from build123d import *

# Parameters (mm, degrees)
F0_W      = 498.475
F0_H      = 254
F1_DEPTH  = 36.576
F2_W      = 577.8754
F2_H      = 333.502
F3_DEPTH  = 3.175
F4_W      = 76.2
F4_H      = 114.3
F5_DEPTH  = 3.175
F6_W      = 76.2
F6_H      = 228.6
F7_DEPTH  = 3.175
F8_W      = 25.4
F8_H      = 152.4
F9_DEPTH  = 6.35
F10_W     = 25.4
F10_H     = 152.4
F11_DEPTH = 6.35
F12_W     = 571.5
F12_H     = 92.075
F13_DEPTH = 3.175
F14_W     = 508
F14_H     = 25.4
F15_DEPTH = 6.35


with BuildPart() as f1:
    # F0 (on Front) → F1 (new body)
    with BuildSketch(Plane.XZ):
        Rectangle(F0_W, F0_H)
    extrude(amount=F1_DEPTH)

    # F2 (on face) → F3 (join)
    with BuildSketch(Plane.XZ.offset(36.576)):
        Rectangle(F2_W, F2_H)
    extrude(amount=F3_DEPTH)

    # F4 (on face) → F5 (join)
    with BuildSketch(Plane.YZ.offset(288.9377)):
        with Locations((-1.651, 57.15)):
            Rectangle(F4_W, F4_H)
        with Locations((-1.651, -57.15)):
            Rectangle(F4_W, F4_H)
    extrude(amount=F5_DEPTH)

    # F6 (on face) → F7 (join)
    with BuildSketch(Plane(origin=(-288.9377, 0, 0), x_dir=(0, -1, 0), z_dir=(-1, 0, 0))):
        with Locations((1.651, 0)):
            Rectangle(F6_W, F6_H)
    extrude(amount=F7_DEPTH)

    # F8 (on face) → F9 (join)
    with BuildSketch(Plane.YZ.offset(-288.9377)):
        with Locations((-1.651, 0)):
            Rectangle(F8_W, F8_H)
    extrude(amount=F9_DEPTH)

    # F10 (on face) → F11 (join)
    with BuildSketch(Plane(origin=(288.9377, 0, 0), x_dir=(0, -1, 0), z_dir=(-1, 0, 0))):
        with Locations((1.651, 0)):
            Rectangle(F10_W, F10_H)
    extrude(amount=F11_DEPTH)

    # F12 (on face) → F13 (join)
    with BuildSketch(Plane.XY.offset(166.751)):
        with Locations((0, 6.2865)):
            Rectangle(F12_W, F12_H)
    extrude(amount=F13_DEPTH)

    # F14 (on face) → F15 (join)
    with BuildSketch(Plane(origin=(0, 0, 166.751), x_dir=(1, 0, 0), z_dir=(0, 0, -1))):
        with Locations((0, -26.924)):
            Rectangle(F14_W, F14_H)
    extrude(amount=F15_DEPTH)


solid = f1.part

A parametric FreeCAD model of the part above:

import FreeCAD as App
import Part
import Sketcher
from FreeCAD import Vector
Q = App.Units.Quantity


def add_polygon(sketch, points):
    """Adds a closed chain of lines whose ends are joined by coincident constraints."""
    first, n = sketch.GeometryCount, len(points)
    for a, b in zip(points, points[1:] + points[:1]):
        sketch.addGeometry(Part.LineSegment(App.Vector(*a, 0), App.Vector(*b, 0)), False)
    for i in range(n):
        sketch.addConstraint(Sketcher.Constraint("Coincident", first + i, 2, first + (i + 1) % n, 1))

doc = App.newDocument("Part")
body = doc.addObject("PartDesign::Body", "Body")

# Sketch on XZ plane
sketch1 = doc.addObject("Sketcher::SketchObject", "Sketch")
body.addObject(sketch1)
sketch1.AttachmentSupport = (doc.XZ_Plane, [""])
sketch1.MapMode = "FlatFace"
add_polygon(sketch1, [(-249.2375, 127), (-249.2375, -127), (249.2375, -127), (249.2375, 127)])  # lines 0-3
sketch1.addConstraint([
    Sketcher.Constraint("Vertical", 0),
    Sketcher.Constraint("Horizontal", 1),
    Sketcher.Constraint("Vertical", 2),
    Sketcher.Constraint("Horizontal", 3),
    Sketcher.Constraint("Symmetric", 0, 2, 2, 2, -1, 1),
    Sketcher.Constraint("DistanceY", 0, 2, 0, 1, Q("10 in")),
    Sketcher.Constraint("DistanceX", 1, 1, 1, 2, Q("19.625 in")),
])
pad1 = doc.addObject("PartDesign::Pad", "Pad")
body.addObject(pad1)
pad1.Profile = sketch1
pad1.Length = Q("1.44 in")

# Sketch on XZ plane
sketch2 = doc.addObject("Sketcher::SketchObject", "Sketch001")
body.addObject(sketch2)
sketch2.AttachmentSupport = (doc.XZ_Plane, [""])
sketch2.MapMode = "FlatFace"
sketch2.AttachmentOffset = App.Placement(Vector(0, 0, 1.44 * 25.4), App.Rotation())
add_polygon(sketch2, [(-288.9377, 166.751), (-288.9377, -166.751), (288.9377, -166.751), (288.9377, 166.751)])  # lines 0-3
sketch2.addConstraint([
    Sketcher.Constraint("Vertical", 0),
    Sketcher.Constraint("Horizontal", 1),
    Sketcher.Constraint("Vertical", 2),
    Sketcher.Constraint("Horizontal", 3),
    Sketcher.Constraint("Symmetric", 0, 2, 2, 2, -1, 1),
    Sketcher.Constraint("DistanceY", 0, 2, 0, 1, Q("13.13 in")),
    Sketcher.Constraint("DistanceX", 1, 1, 1, 2, Q("22.751 in")),
])
pad2 = doc.addObject("PartDesign::Pad", "Pad001")
body.addObject(pad2)
pad2.Profile = sketch2
pad2.Length = Q("0.125 in")

# Sketch on YZ plane
sketch3 = doc.addObject("Sketcher::SketchObject", "Sketch002")
body.addObject(sketch3)
sketch3.AttachmentSupport = (doc.YZ_Plane, [""])
sketch3.MapMode = "FlatFace"
sketch3.AttachmentOffset = App.Placement(Vector(0, 0, 11.3755 * 25.4), App.Rotation())
add_polygon(sketch3, [(-39.751, 114.3), (-39.751, -114.3), (36.449, -114.3), (36.449, 114.3)])  # lines 0-3
sketch3.addConstraint([
    Sketcher.Constraint("Vertical", 0),
    Sketcher.Constraint("Horizontal", 1),
    Sketcher.Constraint("Vertical", 2),
    Sketcher.Constraint("Horizontal", 3),
    Sketcher.Constraint("DistanceX", 1, 1, 1, 2, Q("3 in")),
    Sketcher.Constraint("DistanceY", 0, 2, 0, 1, Q("9 in")),
    Sketcher.Constraint("DistanceY", 0, 2, -1, 1, Q("4.5 in")),
    Sketcher.Constraint("DistanceX", 0, 2, -1, 1, Q("1.565 in")),
])
pad3 = doc.addObject("PartDesign::Pad", "Pad002")
body.addObject(pad3)
pad3.Profile = sketch3
pad3.Length = Q("0.125 in")

# Sketch on YZ plane
sketch4 = doc.addObject("Sketcher::SketchObject", "Sketch003")
body.addObject(sketch4)
sketch4.AttachmentSupport = (doc.YZ_Plane, [""])
sketch4.MapMode = "FlatFace"
sketch4.AttachmentOffset = App.Placement(Vector(0, 0, -11.3755 * 25.4), App.Rotation())
add_polygon(sketch4, [(36.449, 114.3), (36.449, -114.3), (-39.751, -114.3), (-39.751, 114.3)])  # lines 0-3
sketch4.addConstraint([
    Sketcher.Constraint("Vertical", 0),
    Sketcher.Constraint("Horizontal", 1),
    Sketcher.Constraint("Vertical", 2),
    Sketcher.Constraint("Horizontal", 3),
    Sketcher.Constraint("DistanceX", 1, 2, 1, 1, Q("3 in")),
    Sketcher.Constraint("DistanceY", 0, 2, 0, 1, Q("9 in")),
    Sketcher.Constraint("DistanceY", 0, 2, -1, 1, Q("4.5 in")),
    Sketcher.Constraint("DistanceX", -1, 1, 0, 2, Q("1.435 in")),
])
pad4 = doc.addObject("PartDesign::Pad", "Pad003")
body.addObject(pad4)
pad4.Profile = sketch4
pad4.Length = Q("0.125 in")
pad4.Reversed = True

# Sketch on YZ plane
sketch5 = doc.addObject("Sketcher::SketchObject", "Sketch004")
body.addObject(sketch5)
sketch5.AttachmentSupport = (doc.YZ_Plane, [""])
sketch5.MapMode = "FlatFace"
sketch5.AttachmentOffset = App.Placement(Vector(0, 0, -11.3755 * 25.4), App.Rotation())
add_polygon(sketch5, [(-14.351, 76.2), (-14.351, -76.2), (11.049, -76.2), (11.049, 76.2)])  # lines 0-3
sketch5.addConstraint([
    Sketcher.Constraint("Vertical", 0),
    Sketcher.Constraint("Horizontal", 1),
    Sketcher.Constraint("Vertical", 2),
    Sketcher.Constraint("Horizontal", 3),
    Sketcher.Constraint("DistanceX", 1, 1, 1, 2, Q("1 in")),
    Sketcher.Constraint("DistanceY", 0, 2, 0, 1, Q("6 in")),
    Sketcher.Constraint("DistanceY", 0, 2, -1, 1, Q("3 in")),
    Sketcher.Constraint("DistanceX", 0, 2, -1, 1, Q("0.565 in")),
])
pad5 = doc.addObject("PartDesign::Pad", "Pad004")
body.addObject(pad5)
pad5.Profile = sketch5
pad5.Length = Q("0.25 in")

# Sketch on YZ plane
sketch6 = doc.addObject("Sketcher::SketchObject", "Sketch005")
body.addObject(sketch6)
sketch6.AttachmentSupport = (doc.YZ_Plane, [""])
sketch6.MapMode = "FlatFace"
sketch6.AttachmentOffset = App.Placement(Vector(0, 0, 11.3755 * 25.4), App.Rotation())
add_polygon(sketch6, [(11.049, 76.2), (11.049, -76.2), (-14.351, -76.2), (-14.351, 76.2)])  # lines 0-3
sketch6.addConstraint([
    Sketcher.Constraint("Vertical", 0),
    Sketcher.Constraint("Horizontal", 1),
    Sketcher.Constraint("Vertical", 2),
    Sketcher.Constraint("Horizontal", 3),
    Sketcher.Constraint("DistanceX", 1, 2, 1, 1, Q("1 in")),
    Sketcher.Constraint("DistanceY", 0, 2, 0, 1, Q("6 in")),
    Sketcher.Constraint("DistanceY", 0, 2, -1, 1, Q("3 in")),
    Sketcher.Constraint("DistanceX", -1, 1, 0, 2, Q("0.435 in")),
])
pad6 = doc.addObject("PartDesign::Pad", "Pad005")
body.addObject(pad6)
pad6.Profile = sketch6
pad6.Length = Q("0.25 in")
pad6.Reversed = True

# Sketch on XY plane
sketch7 = doc.addObject("Sketcher::SketchObject", "Sketch006")
body.addObject(sketch7)
sketch7.AttachmentSupport = (doc.XY_Plane, [""])
sketch7.MapMode = "FlatFace"
sketch7.AttachmentOffset = App.Placement(Vector(0, 0, 6.565 * 25.4), App.Rotation())
add_polygon(sketch7, [(-285.75, 52.324), (-285.75, -39.751), (285.75, -39.751), (285.75, 52.324)])  # lines 0-3
sketch7.addConstraint([
    Sketcher.Constraint("Vertical", 0),
    Sketcher.Constraint("Horizontal", 1),
    Sketcher.Constraint("Vertical", 2),
    Sketcher.Constraint("Horizontal", 3),
    Sketcher.Constraint("DistanceX", 1, 1, 1, 2, Q("22.5 in")),
    Sketcher.Constraint("DistanceY", 0, 2, 0, 1, Q("3.625 in")),
    Sketcher.Constraint("DistanceX", 0, 2, -1, 1, Q("11.25 in")),
    Sketcher.Constraint("DistanceY", -1, 1, 2, 2, Q("2.06 in")),
])
pad7 = doc.addObject("PartDesign::Pad", "Pad006")
body.addObject(pad7)
pad7.Profile = sketch7
pad7.Length = Q("0.125 in")

# Sketch on XY plane
sketch8 = doc.addObject("Sketcher::SketchObject", "Sketch007")
body.addObject(sketch8)
sketch8.AttachmentSupport = (doc.XY_Plane, [""])
sketch8.MapMode = "FlatFace"
sketch8.AttachmentOffset = App.Placement(Vector(0, 0, 6.565 * 25.4), App.Rotation())
add_polygon(sketch8, [(-254, 14.224), (-254, 39.624), (254, 39.624), (254, 14.224)])  # lines 0-3
sketch8.addConstraint([
    Sketcher.Constraint("Vertical", 0),
    Sketcher.Constraint("Horizontal", 1),
    Sketcher.Constraint("Vertical", 2),
    Sketcher.Constraint("Horizontal", 3),
    Sketcher.Constraint("DistanceX", 1, 1, 1, 2, Q("20 in")),
    Sketcher.Constraint("DistanceY", 0, 1, 0, 2, Q("1 in")),
    Sketcher.Constraint("DistanceX", 0, 2, -1, 1, Q("10 in")),
    Sketcher.Constraint("DistanceY", -1, 1, 0, 2, Q("1.56 in")),
])
pad8 = doc.addObject("PartDesign::Pad", "Pad007")
body.addObject(pad8)
pad8.Profile = sketch8
pad8.Length = Q("0.25 in")
pad8.Reversed = True

doc.recompute()
